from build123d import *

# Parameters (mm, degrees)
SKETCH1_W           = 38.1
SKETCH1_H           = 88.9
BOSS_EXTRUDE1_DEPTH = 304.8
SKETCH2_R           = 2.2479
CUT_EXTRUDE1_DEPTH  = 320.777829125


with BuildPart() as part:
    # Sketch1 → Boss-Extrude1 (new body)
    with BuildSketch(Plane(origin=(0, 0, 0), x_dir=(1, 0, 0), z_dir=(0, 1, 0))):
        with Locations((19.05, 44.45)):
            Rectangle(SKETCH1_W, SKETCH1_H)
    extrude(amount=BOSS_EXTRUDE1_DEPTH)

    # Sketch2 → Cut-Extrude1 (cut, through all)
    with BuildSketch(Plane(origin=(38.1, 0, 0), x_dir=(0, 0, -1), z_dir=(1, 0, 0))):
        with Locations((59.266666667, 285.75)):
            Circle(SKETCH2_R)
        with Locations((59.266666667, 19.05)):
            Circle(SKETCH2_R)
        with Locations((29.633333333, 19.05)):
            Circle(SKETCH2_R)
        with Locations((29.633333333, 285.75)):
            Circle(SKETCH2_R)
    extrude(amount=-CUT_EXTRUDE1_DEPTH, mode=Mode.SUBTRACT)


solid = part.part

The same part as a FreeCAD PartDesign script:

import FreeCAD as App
import Part
import Sketcher
from FreeCAD import Vector
Q = App.Units.Quantity

doc = App.newDocument("Part")
body = doc.addObject("PartDesign::Body", "Body")

# Sketch on XZ plane
sketch1 = body.newObject("Sketcher::SketchObject", "Sketch")
sketch1.AttachmentSupport = (doc.getObject("XZ_Plane"), [""])
sketch1.MapMode = "FlatFace"
sketch1.addGeometry([
    Part.LineSegment(Vector(0, -89, 0), Vector(0, 0, 0)),
    Part.LineSegment(Vector(0, 0, 0), Vector(38, 0, 0)),
    Part.LineSegment(Vector(38, 0, 0), Vector(38, -89, 0)),
    Part.LineSegment(Vector(38, -89, 0), Vector(0, -89, 0)),
], False)
sketch1.addConstraint([
    Sketcher.Constraint("Coincident", 0, 2, 1, 1),
    Sketcher.Constraint("Coincident", 1, 2, 2, 1),
    Sketcher.Constraint("Coincident", 2, 2, 3, 1),
    Sketcher.Constraint("Coincident", 3, 2, 0, 1),
    Sketcher.Constraint("Vertical", 0),
    Sketcher.Constraint("Horizontal", 1),
    Sketcher.Constraint("Vertical", 2),
    Sketcher.Constraint("Horizontal", 3),
    Sketcher.Constraint("Coincident", 0, 2, -1, 1),
    Sketcher.Constraint("DistanceX", 1, 1, 1, 2, Q("1.5 in")),
    Sketcher.Constraint("DistanceY", 0, 1, 0, 2, Q("3.5 in")),
])
pad1 = body.newObject("PartDesign::Pad", "Pad")
pad1.Profile = sketch1
pad1.Length = Q("12 in")
pad1.Reversed = True

# Sketch on YZ plane
sketch2 = body.newObject("Sketcher::SketchObject", "Sketch001")
sketch2.AttachmentSupport = (doc.getObject("YZ_Plane"), [""])
sketch2.MapMode = "FlatFace"
sketch2.AttachmentOffset = App.Placement(Vector(0, 0, 1.5 * 25.4), App.Rotation())
sketch2.addGeometry([
    Part.Circle(Vector(285.8, -59.3, 0), Vector(0, 0, 1), 2.2),
    Part.Circle(Vector(19.1, -59.3, 0), Vector(0, 0, 1), 2.2),
    Part.Circle(Vector(19.1, -29.6, 0), Vector(0, 0, 1), 2.2),
    Part.Circle(Vector(285.8, -29.6, 0), Vector(0, 0, 1), 2.2),
], False)
sketch2.addConstraint([
    Sketcher.Constraint("Equal", 0, 1),
    Sketcher.Constraint("Equal", 1, 2),
    Sketcher.Constraint("Equal", 2, 3),
    Sketcher.Constraint("Horizontal", 0, 3, 1, 3),
    Sketcher.Constraint("Horizontal", 2, 3, 3, 3),
    Sketcher.Constraint("Vertical", 1, 3, 2, 3),
    Sketcher.Constraint("Vertical", 0, 3, 3, 3),
    Sketcher.Constraint("Diameter", 0, Q("0.177 in")),
    Sketcher.Constraint("DistanceX", 1, 3, 0, 3, Q("10.5 in")),
    Sketcher.Constraint("DistanceX", -1, 1, 0, 3, Q("11.25 in")),
    Sketcher.Constraint("DistanceY", 0, 3, -1, 1, 59.266667),
    Sketcher.Constraint("DistanceY", 2, 3, -1, 1, 29.633333),
])
pocket1 = body.newObject("PartDesign::Pocket", "Pocket")
pocket1.Profile = sketch2
pocket1.Type = "ThroughAll"

doc.recompute()
